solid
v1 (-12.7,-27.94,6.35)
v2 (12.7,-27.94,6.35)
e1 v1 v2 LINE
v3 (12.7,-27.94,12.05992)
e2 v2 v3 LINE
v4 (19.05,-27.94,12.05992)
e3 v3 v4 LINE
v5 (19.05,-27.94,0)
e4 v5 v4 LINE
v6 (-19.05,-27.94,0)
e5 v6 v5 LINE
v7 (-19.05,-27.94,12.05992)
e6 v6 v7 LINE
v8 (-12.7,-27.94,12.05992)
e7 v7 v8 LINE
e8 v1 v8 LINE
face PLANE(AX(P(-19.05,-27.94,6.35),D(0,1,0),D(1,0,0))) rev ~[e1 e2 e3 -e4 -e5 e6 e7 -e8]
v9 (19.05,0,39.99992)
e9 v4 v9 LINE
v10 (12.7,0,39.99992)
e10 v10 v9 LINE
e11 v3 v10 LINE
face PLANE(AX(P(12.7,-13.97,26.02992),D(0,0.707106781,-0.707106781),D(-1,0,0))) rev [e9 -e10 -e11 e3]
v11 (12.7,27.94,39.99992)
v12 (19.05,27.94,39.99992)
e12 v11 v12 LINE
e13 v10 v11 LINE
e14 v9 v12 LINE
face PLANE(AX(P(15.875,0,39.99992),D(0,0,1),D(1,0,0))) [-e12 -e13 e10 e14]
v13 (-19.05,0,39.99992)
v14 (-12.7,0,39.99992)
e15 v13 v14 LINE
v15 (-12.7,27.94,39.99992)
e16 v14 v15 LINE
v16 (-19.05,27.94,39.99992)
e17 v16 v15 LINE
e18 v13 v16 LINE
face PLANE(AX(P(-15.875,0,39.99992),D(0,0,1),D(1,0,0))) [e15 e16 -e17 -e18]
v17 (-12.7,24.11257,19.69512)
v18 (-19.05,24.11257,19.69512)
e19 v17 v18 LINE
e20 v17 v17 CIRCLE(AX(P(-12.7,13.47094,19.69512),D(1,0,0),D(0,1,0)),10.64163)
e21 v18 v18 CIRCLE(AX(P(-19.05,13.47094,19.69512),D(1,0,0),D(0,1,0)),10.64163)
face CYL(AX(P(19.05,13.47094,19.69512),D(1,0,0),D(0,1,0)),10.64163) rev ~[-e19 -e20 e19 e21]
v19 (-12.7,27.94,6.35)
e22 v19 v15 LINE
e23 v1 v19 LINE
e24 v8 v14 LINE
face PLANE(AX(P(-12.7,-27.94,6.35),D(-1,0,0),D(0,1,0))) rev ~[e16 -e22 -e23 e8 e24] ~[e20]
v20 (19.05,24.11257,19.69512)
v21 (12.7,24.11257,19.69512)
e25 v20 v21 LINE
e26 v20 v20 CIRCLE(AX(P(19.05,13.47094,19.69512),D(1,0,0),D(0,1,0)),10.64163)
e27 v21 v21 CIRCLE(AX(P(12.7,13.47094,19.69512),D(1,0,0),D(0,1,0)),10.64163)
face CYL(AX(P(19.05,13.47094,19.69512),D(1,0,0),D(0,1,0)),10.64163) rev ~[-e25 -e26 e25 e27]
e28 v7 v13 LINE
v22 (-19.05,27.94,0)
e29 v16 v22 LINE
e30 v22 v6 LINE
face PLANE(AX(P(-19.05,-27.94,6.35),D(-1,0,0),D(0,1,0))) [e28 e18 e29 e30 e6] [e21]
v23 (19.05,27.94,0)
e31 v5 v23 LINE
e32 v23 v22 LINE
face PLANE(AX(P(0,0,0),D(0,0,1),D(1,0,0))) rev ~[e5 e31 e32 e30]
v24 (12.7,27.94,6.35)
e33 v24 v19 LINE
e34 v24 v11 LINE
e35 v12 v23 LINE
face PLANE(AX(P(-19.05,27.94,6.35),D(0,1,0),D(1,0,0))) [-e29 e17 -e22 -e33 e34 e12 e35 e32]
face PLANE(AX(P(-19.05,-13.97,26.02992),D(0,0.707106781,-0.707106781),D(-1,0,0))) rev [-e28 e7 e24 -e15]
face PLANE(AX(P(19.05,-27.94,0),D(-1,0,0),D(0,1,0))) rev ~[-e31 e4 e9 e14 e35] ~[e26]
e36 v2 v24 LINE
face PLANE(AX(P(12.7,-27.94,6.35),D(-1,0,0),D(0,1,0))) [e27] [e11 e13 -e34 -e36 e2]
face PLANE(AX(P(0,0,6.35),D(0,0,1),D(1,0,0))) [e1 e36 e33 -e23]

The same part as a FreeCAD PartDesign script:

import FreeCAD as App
import Part
import Sketcher
from FreeCAD import Vector
Q = App.Units.Quantity


def edges_at(feature, points):
    """Names of the edges that pass closest to the given points."""
    edges = feature.Shape.Edges
    near = lambda p: min(range(len(edges)), key=lambda i: edges[i].distToShape(Part.Vertex(*p))[0])
    return sorted({f"Edge{near(p) + 1}" for p in points})


def add_polygon(sketch, points):
    """Adds a closed chain of lines whose ends are joined by coincident constraints."""
    first, n = sketch.GeometryCount, len(points)
    for a, b in zip(points, points[1:] + points[:1]):
        sketch.addGeometry(Part.LineSegment(App.Vector(*a, 0), App.Vector(*b, 0)), False)
    for i in range(n):
        sketch.addConstraint(Sketcher.Constraint("Coincident", first + i, 2, first + (i + 1) % n, 1))

doc = App.newDocument("Part")
body = doc.addObject("PartDesign::Body", "Body")

sketch1 = body.newObject("Sketcher::SketchObject", "Sketch")
sketch1.AttachmentSupport = (doc.getObject("XY_Plane"), [""])
sketch1.MapMode = "FlatFace"
add_polygon(sketch1, [(19, 28), (-19, 28), (-19, -28), (19, -28)])
sketch1.addConstraint([
    Sketcher.Constraint("Horizontal", 0),
    Sketcher.Constraint("Vertical", 1),
    Sketcher.Constraint("Horizontal", 2),
    Sketcher.Constraint("Vertical", 3),
    Sketcher.Constraint("Symmetric", 0, 2, 2, 2, -1, 1),
    Sketcher.Constraint("DistanceX", 0, 2, 0, 1, Q("1.5 in")),
    Sketcher.Constraint("DistanceY", 1, 2, 1, 1, Q("2.2 in")),
])
pad1 = body.newObject("PartDesign::Pad", "Pad")
pad1.Profile = sketch1
pad1.Length = Q("0.25 in")

sketch2 = body.newObject("Sketcher::SketchObject", "Sketch001")
sketch2.AttachmentSupport = (doc.getObject("XY_Plane"), [""])
sketch2.MapMode = "FlatFace"
sketch2.AttachmentOffset = App.Placement(Vector(0, 0, 0.25 * 25.4), App.Rotation())
add_polygon(sketch2, [(-19, 28), (-19, -28), (-13, -28), (-13, 28)])
add_polygon(sketch2, [(13, 28), (13, -28), (19, -28), (19, 28)])
sketch2.addConstraint([
    Sketcher.Constraint("Vertical", 0),
    Sketcher.Constraint("Horizontal", 1),
    Sketcher.Constraint("Vertical", 2),
    Sketcher.Constraint("Horizontal", 3),
    Sketcher.Constraint("Vertical", 4),
    Sketcher.Constraint("Horizontal", 5),
    Sketcher.Constraint("Vertical", 6),
    Sketcher.Constraint("Horizontal", 7),
    Sketcher.Constraint("Symmetric", 2, 2, 4, 2, -1, 1),
    Sketcher.Constraint("Symmetric", 0, 2, 6, 2, -1, 1),
    Sketcher.Constraint("Horizontal", 1, 2, 4, 2),
    Sketcher.Constraint("DistanceY", 0, 2, 0, 1, Q("2.2 in")),
    Sketcher.Constraint("DistanceX", 1, 2, 4, 2, Q("1 in")),
    Sketcher.Constraint("DistanceX", 1, 1, 1, 2, Q("0.25 in")),
])
pad2 = body.newObject("PartDesign::Pad", "Pad001")
pad2.Profile = sketch2
pad2.Length = Q("1.3248 in")
doc.recompute()

chamfer = body.newObject("PartDesign::Chamfer", "Chamfer")
chamfer.Base = (pad2, edges_at(pad2, [(15.875, -27.94, 40), (-15.875, -27.94, 40)]))
chamfer.Size = Q("1.1 in")

sketch3 = body.newObject("Sketcher::SketchObject", "Sketch002")
sketch3.AttachmentSupport = (doc.getObject("YZ_Plane"), [""])
sketch3.MapMode = "FlatFace"
sketch3.AttachmentOffset = App.Placement(Vector(0, 0, 0.75 * 25.4), App.Rotation())
sketch3.addGeometry(Part.Circle(Vector(13, 20, 0), Vector(0, 0, 1), 11), False)
sketch3.addConstraint([
    Sketcher.Constraint("Diameter", 0, 21.28326),
    Sketcher.Constraint("DistanceX", -1, 1, 0, 3, 13.47094),
    Sketcher.Constraint("DistanceY", -1, 1, 0, 3, 19.69512),
])
pocket1 = body.newObject("PartDesign::Pocket", "Pocket")
pocket1.Profile = sketch3
pocket1.Type = "ThroughAll"

doc.recompute()
